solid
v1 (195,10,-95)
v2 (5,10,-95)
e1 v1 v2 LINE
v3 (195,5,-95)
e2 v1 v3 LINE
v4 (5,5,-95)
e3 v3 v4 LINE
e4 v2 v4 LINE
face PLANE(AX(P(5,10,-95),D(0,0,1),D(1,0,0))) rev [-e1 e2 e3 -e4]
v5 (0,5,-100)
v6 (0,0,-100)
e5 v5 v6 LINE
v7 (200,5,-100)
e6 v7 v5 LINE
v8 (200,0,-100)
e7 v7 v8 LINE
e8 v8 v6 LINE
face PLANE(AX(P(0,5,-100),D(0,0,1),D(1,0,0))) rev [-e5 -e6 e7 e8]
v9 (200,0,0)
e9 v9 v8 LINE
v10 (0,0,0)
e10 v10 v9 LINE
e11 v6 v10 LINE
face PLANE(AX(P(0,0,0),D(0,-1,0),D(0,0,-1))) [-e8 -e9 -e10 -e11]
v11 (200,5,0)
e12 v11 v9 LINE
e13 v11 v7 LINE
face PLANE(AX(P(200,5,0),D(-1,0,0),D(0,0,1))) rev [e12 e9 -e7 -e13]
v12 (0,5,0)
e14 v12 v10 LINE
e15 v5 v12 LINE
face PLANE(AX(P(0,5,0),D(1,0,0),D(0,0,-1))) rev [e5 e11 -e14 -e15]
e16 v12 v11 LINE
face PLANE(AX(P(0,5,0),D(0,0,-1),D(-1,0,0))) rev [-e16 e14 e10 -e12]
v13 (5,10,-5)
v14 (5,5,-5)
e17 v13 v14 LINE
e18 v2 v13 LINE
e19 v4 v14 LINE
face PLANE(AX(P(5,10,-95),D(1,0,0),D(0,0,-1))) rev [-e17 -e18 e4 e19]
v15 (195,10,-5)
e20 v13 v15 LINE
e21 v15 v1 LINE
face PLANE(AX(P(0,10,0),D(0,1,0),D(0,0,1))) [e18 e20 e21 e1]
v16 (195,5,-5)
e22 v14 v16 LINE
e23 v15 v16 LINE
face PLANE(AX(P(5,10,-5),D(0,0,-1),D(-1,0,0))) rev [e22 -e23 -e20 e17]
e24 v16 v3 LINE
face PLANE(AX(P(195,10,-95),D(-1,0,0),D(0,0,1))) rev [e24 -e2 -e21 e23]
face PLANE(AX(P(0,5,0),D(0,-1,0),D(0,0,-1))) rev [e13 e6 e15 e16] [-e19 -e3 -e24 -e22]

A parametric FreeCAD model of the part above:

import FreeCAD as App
import Part
import Sketcher

V = App.Vector
Q = App.Units.Quantity

doc = App.newDocument("Part")
body = doc.addObject("PartDesign::Body", "Body")

# Sketch on XZ plane
sketch1 = body.newObject("Sketcher::SketchObject", "Sketch")
sketch1.AttachmentSupport = (doc.getObject("XZ_Plane"), [""])
sketch1.MapMode = "FlatFace"
sketch1.addGeometry(Part.LineSegment(V(0, -100, 0), V(0, 0, 0)), False)
sketch1.addGeometry(Part.LineSegment(V(0, 0, 0), V(200, 0, 0)), False)
sketch1.addGeometry(Part.LineSegment(V(200, 0, 0), V(200, -100, 0)), False)
sketch1.addGeometry(Part.LineSegment(V(200, -100, 0), V(0, -100, 0)), False)
sketch1.addConstraint(Sketcher.Constraint("Coincident", 0, 2, 1, 1))
sketch1.addConstraint(Sketcher.Constraint("Coincident", 1, 2, 2, 1))
sketch1.addConstraint(Sketcher.Constraint("Coincident", 2, 2, 3, 1))
sketch1.addConstraint(Sketcher.Constraint("Coincident", 3, 2, 0, 1))
sketch1.addConstraint(Sketcher.Constraint("Vertical", 0))
sketch1.addConstraint(Sketcher.Constraint("Horizontal", 1))
sketch1.addConstraint(Sketcher.Constraint("Vertical", 2))
sketch1.addConstraint(Sketcher.Constraint("Horizontal", 3))
sketch1.addConstraint(Sketcher.Constraint("Coincident", 0, 2, -1, 1))
sketch1.addConstraint(Sketcher.Constraint("DistanceX", 1, 1, 1, 2, Q("200 mm")))
sketch1.addConstraint(Sketcher.Constraint("DistanceY", 0, 1, 0, 2, Q("100 mm")))
pad1 = body.newObject("PartDesign::Pad", "Pad")
pad1.Profile = sketch1
pad1.Length = 5
pad1.Reversed = True

# Sketch on XZ plane
sketch2 = body.newObject("Sketcher::SketchObject", "Sketch001")
sketch2.AttachmentSupport = (doc.getObject("XZ_Plane"), [""])
sketch2.MapMode = "FlatFace"
sketch2.AttachmentOffset = App.Placement(V(0, 0, -5), App.Rotation())
sketch2.addGeometry(Part.LineSegment(V(5, -95, 0), V(5, -5, 0)), False)
sketch2.addGeometry(Part.LineSegment(V(5, -5, 0), V(195, -5, 0)), False)
sketch2.addGeometry(Part.LineSegment(V(195, -5, 0), V(195, -95, 0)), False)
sketch2.addGeometry(Part.LineSegment(V(195, -95, 0), V(5, -95, 0)), False)
sketch2.addConstraint(Sketcher.Constraint("Coincident", 0, 2, 1, 1))
sketch2.addConstraint(Sketcher.Constraint("Coincident", 1, 2, 2, 1))
sketch2.addConstraint(Sketcher.Constraint("Coincident", 2, 2, 3, 1))
sketch2.addConstraint(Sketcher.Constraint("Coincident", 3, 2, 0, 1))
sketch2.addConstraint(Sketcher.Constraint("Vertical", 0))
sketch2.addConstraint(Sketcher.Constraint("Horizontal", 1))
sketch2.addConstraint(Sketcher.Constraint("Vertical", 2))
sketch2.addConstraint(Sketcher.Constraint("Horizontal", 3))
sketch2.addConstraint(Sketcher.Constraint("DistanceX", 1, 1, 1, 2, Q("190 mm")))
sketch2.addConstraint(Sketcher.Constraint("DistanceY", 0, 1, 0, 2, Q("90 mm")))
sketch2.addConstraint(Sketcher.Constraint("DistanceX", -1, 1, 0, 2, Q("5 mm")))
sketch2.addConstraint(Sketcher.Constraint("DistanceY", 0, 2, -1, 1, Q("5 mm")))
pad2 = body.newObject("PartDesign::Pad", "Pad001")
pad2.Profile = sketch2
pad2.Length = 5
pad2.Reversed = True

doc.recompute()
